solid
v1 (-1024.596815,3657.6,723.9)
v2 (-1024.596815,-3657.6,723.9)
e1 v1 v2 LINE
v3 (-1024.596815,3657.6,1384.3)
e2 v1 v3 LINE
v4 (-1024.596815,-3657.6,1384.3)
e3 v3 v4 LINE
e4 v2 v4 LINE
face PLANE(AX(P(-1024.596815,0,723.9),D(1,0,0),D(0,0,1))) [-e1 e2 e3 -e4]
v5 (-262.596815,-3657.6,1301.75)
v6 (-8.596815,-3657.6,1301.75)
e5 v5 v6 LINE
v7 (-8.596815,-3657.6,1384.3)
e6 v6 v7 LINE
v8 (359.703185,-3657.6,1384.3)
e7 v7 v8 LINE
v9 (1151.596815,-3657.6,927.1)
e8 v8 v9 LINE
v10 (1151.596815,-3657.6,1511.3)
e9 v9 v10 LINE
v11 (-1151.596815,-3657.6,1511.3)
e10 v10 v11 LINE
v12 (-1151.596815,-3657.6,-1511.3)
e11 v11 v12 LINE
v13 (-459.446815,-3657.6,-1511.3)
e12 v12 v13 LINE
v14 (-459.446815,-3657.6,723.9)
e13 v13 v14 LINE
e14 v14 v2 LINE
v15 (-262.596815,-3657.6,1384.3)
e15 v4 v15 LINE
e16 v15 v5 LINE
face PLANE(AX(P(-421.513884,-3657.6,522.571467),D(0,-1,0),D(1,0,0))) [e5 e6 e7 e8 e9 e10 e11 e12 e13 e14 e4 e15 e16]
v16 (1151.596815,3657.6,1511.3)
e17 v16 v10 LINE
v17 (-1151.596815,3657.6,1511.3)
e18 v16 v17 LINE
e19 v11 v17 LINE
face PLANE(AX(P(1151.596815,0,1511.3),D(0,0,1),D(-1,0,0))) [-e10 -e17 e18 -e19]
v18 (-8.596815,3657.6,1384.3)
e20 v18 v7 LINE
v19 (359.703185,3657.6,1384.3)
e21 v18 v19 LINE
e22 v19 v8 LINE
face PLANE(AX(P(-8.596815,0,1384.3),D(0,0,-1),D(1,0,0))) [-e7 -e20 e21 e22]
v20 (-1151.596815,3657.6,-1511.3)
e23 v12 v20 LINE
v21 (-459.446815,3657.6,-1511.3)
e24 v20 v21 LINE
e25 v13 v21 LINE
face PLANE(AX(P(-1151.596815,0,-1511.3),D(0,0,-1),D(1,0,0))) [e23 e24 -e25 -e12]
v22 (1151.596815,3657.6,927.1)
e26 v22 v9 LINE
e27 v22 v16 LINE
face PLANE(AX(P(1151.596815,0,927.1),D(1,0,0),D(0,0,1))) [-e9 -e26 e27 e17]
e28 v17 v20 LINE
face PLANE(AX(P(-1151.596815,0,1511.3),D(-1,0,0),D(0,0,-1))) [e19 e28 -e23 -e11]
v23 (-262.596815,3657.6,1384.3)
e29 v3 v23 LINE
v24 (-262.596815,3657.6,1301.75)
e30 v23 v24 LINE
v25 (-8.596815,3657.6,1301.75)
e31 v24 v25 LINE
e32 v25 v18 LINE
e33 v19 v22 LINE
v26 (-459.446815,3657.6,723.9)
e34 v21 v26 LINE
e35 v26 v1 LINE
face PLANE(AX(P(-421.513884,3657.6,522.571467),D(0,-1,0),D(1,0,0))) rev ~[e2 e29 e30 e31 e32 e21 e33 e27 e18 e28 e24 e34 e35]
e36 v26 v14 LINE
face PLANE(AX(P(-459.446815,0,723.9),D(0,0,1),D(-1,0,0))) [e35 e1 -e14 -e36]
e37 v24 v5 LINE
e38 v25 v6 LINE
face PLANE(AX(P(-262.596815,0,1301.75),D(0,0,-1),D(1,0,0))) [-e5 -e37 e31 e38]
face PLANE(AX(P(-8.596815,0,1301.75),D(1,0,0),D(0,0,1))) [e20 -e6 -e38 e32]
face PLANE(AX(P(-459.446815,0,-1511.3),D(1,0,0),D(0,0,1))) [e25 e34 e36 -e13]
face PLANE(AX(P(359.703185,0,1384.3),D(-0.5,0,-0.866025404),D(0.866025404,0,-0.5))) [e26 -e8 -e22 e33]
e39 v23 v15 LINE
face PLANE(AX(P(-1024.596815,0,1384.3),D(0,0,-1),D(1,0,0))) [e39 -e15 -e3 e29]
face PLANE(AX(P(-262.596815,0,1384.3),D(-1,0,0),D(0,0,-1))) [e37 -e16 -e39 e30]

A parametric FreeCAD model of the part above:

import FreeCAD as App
import Part
import Sketcher
from FreeCAD import Vector
Q = App.Units.Quantity

doc = App.newDocument("Part")
body = doc.addObject("PartDesign::Body", "Body")

# Sketch on XZ plane
sketch1 = body.newObject("Sketcher::SketchObject", "Sketch")
sketch1.AttachmentSupport = (doc.getObject("XZ_Plane"), [""])
sketch1.MapMode = "FlatFace"
sketch1.addGeometry(Part.LineSegment(Vector(-459, -1511, 0), Vector(-459, 724, 0)), False)
sketch1.addGeometry(Part.LineSegment(Vector(-459, 724, 0), Vector(-1025, 724, 0)), False)
sketch1.addGeometry(Part.LineSegment(Vector(-1025, 724, 0), Vector(-1025, 1384, 0)), False)
sketch1.addGeometry(Part.LineSegment(Vector(-1025, 1384, 0), Vector(-263, 1384, 0)), False)
sketch1.addGeometry(Part.LineSegment(Vector(-263, 1384, 0), Vector(-263, 1302, 0)), False)
sketch1.addGeometry(Part.LineSegment(Vector(-263, 1302, 0), Vector(-9, 1302, 0)), False)
sketch1.addGeometry(Part.LineSegment(Vector(-9, 1302, 0), Vector(-9, 1384, 0)), False)
sketch1.addGeometry(Part.LineSegment(Vector(-9, 1384, 0), Vector(360, 1384, 0)), False)
sketch1.addGeometry(Part.LineSegment(Vector(360, 1384, 0), Vector(1152, 927, 0)), False)
sketch1.addGeometry(Part.LineSegment(Vector(1152, 927, 0), Vector(1152, 1511, 0)), False)
sketch1.addGeometry(Part.LineSegment(Vector(1152, 1511, 0), Vector(-1152, 1511, 0)), False)
sketch1.addGeometry(Part.LineSegment(Vector(-1152, 1511, 0), Vector(-1152, -1511, 0)), False)
sketch1.addGeometry(Part.LineSegment(Vector(-1152, -1511, 0), Vector(-459, -1511, 0)), False)
sketch1.addConstraint(Sketcher.Constraint("Coincident", 0, 2, 1, 1))
sketch1.addConstraint(Sketcher.Constraint("Coincident", 1, 2, 2, 1))
sketch1.addConstraint(Sketcher.Constraint("Coincident", 2, 2, 3, 1))
sketch1.addConstraint(Sketcher.Constraint("Coincident", 3, 2, 4, 1))
sketch1.addConstraint(Sketcher.Constraint("Coincident", 4, 2, 5, 1))
sketch1.addConstraint(Sketcher.Constraint("Coincident", 5, 2, 6, 1))
sketch1.addConstraint(Sketcher.Constraint("Coincident", 6, 2, 7, 1))
sketch1.addConstraint(Sketcher.Constraint("Coincident", 7, 2, 8, 1))
sketch1.addConstraint(Sketcher.Constraint("Coincident", 8, 2, 9, 1))
sketch1.addConstraint(Sketcher.Constraint("Coincident", 9, 2, 10, 1))
sketch1.addConstraint(Sketcher.Constraint("Coincident", 10, 2, 11, 1))
sketch1.addConstraint(Sketcher.Constraint("Coincident", 11, 2, 12, 1))
sketch1.addConstraint(Sketcher.Constraint("Coincident", 12, 2, 0, 1))
sketch1.addConstraint(Sketcher.Constraint("Vertical", 0))
sketch1.addConstraint(Sketcher.Constraint("Horizontal", 1))
sketch1.addConstraint(Sketcher.Constraint("Vertical", 2))
sketch1.addConstraint(Sketcher.Constraint("Horizontal", 3))
sketch1.addConstraint(Sketcher.Constraint("Vertical", 4))
sketch1.addConstraint(Sketcher.Constraint("Horizontal", 5))
sketch1.addConstraint(Sketcher.Constraint("Vertical", 6))
sketch1.addConstraint(Sketcher.Constraint("Horizontal", 7))
sketch1.addConstraint(Sketcher.Constraint("Vertical", 9))
sketch1.addConstraint(Sketcher.Constraint("Horizontal", 10))
sketch1.addConstraint(Sketcher.Constraint("Vertical", 11))
sketch1.addConstraint(Sketcher.Constraint("Horizontal", 12))
sketch1.addConstraint(Sketcher.Constraint("Symmetric", 9, 2, 11, 2, -1, 1))
sketch1.addConstraint(Sketcher.Constraint("Horizontal", 3, 2, 6, 2))
sketch1.addConstraint(Sketcher.Constraint("DistanceX", 3, 1, 3, 2, Q("30 in")))
sketch1.addConstraint(Sketcher.Constraint("DistanceX", 5, 1, 5, 2, Q("10 in")))
sketch1.addConstraint(Sketcher.Constraint("DistanceY", 0, 1, 0, 2, Q("88 in")))
sketch1.addConstraint(Sketcher.Constraint("DistanceY", 2, 1, 2, 2, Q("26 in")))
sketch1.addConstraint(Sketcher.Constraint("DistanceY", 9, 1, 9, 2, Q("23 in")))
sketch1.addConstraint(Sketcher.Constraint("DistanceY", 11, 2, 11, 1, Q("119 in")))
sketch1.addConstraint(Sketcher.Constraint("Distance", 8, Q("36 in")))
sketch1.addConstraint(Sketcher.Constraint("DistanceX", 7, 1, 7, 2, Q("14.5 in")))
sketch1.addConstraint(Sketcher.Constraint("DistanceX", 10, 2, 2, 2, Q("5 in")))
sketch1.addConstraint(Sketcher.Constraint("DistanceX", 1, 2, 1, 1, Q("22.25 in")))
sketch1.addConstraint(Sketcher.Constraint("DistanceY", 4, 2, 4, 1, Q("3.25 in")))
pad1 = body.newObject("PartDesign::Pad", "Pad")
pad1.Profile = sketch1
pad1.Length = Q("288 in")
pad1.Midplane = True

doc.recompute()
